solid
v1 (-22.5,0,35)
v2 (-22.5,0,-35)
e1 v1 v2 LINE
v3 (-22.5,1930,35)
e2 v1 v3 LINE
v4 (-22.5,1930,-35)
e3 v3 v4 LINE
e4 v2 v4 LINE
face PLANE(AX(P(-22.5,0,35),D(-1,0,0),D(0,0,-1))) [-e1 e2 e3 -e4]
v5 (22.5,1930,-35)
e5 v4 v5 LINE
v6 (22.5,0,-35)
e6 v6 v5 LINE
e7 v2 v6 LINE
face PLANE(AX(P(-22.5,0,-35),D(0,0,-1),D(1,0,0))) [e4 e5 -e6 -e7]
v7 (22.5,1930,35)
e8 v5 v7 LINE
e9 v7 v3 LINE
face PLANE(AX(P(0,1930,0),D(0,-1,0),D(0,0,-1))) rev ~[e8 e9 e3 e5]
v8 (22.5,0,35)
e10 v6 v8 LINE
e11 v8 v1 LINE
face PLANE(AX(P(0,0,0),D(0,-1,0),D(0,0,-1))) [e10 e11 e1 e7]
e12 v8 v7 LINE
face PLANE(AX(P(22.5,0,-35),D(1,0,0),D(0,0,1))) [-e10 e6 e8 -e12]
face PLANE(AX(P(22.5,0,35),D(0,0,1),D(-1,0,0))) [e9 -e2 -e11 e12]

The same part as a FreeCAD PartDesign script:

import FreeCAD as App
import Part
import Sketcher
Q = App.Units.Quantity


def add_polygon(sketch, points):
    """Adds a closed chain of lines whose ends are joined by coincident constraints."""
    first, n = sketch.GeometryCount, len(points)
    for a, b in zip(points, points[1:] + points[:1]):
        sketch.addGeometry(Part.LineSegment(App.Vector(*a, 0), App.Vector(*b, 0)), False)
    for i in range(n):
        sketch.addConstraint(Sketcher.Constraint("Coincident", first + i, 2, first + (i + 1) % n, 1))

doc = App.newDocument("Part")
params = doc.addObject("Spreadsheet::Sheet", "Params")
for row, (alias, value) in enumerate([
    ("sketch1_width", "45 mm"),
    ("sketch1_height", "70 mm"),
    ("pad1_length", "1930 mm"),
], start=1):
    params.set(f"A{row}", alias)
    params.set(f"B{row}", "=" + value)
    params.setAlias(f"B{row}", alias)

body = doc.addObject("PartDesign::Body", "Body")

sketch1 = body.newObject("Sketcher::SketchObject", "Sketch")
sketch1.AttachmentSupport = (doc.getObject("XZ_Plane"), [""])
sketch1.MapMode = "FlatFace"
add_polygon(sketch1, [(-22.5, 35), (-22.5, -35), (22.5, -35), (22.5, 35)])
sketch1.addConstraint([
    Sketcher.Constraint("Vertical", 0),
    Sketcher.Constraint("Horizontal", 1),
    Sketcher.Constraint("Vertical", 2),
    Sketcher.Constraint("Horizontal", 3),
    Sketcher.Constraint("Symmetric", 0, 2, 2, 2, -1, 1),
    Sketcher.Constraint("DistanceX", 1, 1, 1, 2, Q("45 mm")),
    Sketcher.Constraint("DistanceY", 0, 2, 0, 1, Q("70 mm")),
])
sketch1.setExpression("Constraints[9]", "Params.sketch1_width")
sketch1.setExpression("Constraints[10]", "Params.sketch1_height")
pad1 = body.newObject("PartDesign::Pad", "Pad")
pad1.Profile = sketch1
pad1.setExpression("Length", "Params.pad1_length")
pad1.Reversed = True

doc.recompute()
